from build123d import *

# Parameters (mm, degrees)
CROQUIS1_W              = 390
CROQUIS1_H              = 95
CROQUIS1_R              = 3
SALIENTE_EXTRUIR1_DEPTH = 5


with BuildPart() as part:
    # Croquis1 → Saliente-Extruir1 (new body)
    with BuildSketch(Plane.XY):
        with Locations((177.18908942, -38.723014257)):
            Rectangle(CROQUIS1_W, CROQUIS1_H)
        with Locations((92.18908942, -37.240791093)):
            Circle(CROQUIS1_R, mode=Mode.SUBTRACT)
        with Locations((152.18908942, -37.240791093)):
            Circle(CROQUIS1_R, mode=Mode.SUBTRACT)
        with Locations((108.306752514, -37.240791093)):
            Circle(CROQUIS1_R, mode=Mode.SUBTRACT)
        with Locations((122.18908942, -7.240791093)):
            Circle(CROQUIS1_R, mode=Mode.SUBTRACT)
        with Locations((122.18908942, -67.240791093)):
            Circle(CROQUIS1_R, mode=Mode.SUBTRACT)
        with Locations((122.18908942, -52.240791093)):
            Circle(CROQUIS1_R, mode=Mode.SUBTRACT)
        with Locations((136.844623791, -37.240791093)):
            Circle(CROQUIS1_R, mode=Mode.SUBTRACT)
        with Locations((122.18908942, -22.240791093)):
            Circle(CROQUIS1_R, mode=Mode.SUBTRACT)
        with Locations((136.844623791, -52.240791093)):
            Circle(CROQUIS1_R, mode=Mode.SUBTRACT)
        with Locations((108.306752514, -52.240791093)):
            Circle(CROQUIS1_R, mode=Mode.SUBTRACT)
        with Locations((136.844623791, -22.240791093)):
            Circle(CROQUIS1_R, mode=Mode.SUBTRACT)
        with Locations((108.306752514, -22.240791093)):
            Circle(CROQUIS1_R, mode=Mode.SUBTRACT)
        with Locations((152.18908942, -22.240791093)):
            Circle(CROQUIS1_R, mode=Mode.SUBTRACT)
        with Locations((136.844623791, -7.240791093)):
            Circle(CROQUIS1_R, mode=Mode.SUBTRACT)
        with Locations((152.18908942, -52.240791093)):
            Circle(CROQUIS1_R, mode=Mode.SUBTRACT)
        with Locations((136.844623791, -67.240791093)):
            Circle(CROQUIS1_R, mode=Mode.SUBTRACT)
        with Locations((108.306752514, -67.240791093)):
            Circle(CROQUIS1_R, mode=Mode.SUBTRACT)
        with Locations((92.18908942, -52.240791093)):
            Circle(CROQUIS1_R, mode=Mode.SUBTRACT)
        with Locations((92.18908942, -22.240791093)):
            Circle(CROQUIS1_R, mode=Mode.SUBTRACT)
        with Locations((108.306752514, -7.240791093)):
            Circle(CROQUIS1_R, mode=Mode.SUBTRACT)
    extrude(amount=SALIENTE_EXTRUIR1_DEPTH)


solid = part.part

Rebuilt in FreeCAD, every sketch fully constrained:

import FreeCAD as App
import Part
import Sketcher

V = App.Vector
Q = App.Units.Quantity

doc = App.newDocument("Part")
body = doc.addObject("PartDesign::Body", "Body")

sketch1 = doc.addObject("Sketcher::SketchObject", "Sketch")
body.addObject(sketch1)
sketch1.AttachmentSupport = (doc.XY_Plane, [""])
sketch1.MapMode = "FlatFace"
sketch1.addGeometry([
    Part.LineSegment(V(-17.8, 8.8, 0), V(-17.8, -86.2, 0)),
    Part.LineSegment(V(-17.8, -86.2, 0), V(372.2, -86.2, 0)),
    Part.LineSegment(V(372.2, -86.2, 0), V(372.2, 8.8, 0)),
    Part.LineSegment(V(372.2, 8.8, 0), V(-17.8, 8.8, 0)),
    Part.Circle(V(108.3, -67.2, 0), V(0, 0, 1), 3),
    Part.Circle(V(92.2, -52.2, 0), V(0, 0, 1), 3),
    Part.Circle(V(108.3, -52.2, 0), V(0, 0, 1), 3),
    Part.Circle(V(122.2, -67.2, 0), V(0, 0, 1), 3),
    Part.Circle(V(136.8, -67.2, 0), V(0, 0, 1), 3),
    Part.Circle(V(122.2, -52.2, 0), V(0, 0, 1), 3),
    Part.Circle(V(136.8, -52.2, 0), V(0, 0, 1), 3),
    Part.Circle(V(152.2, -52.2, 0), V(0, 0, 1), 3),
    Part.Circle(V(92.2, -37.2, 0), V(0, 0, 1), 3),
    Part.Circle(V(92.2, -22.2, 0), V(0, 0, 1), 3),
    Part.Circle(V(108.3, -37.2, 0), V(0, 0, 1), 3),
    Part.Circle(V(108.3, -22.2, 0), V(0, 0, 1), 3),
    Part.Circle(V(108.3, -7.2, 0), V(0, 0, 1), 3),
    Part.Circle(V(136.8, -37.2, 0), V(0, 0, 1), 3),
    Part.Circle(V(122.2, -22.2, 0), V(0, 0, 1), 3),
    Part.Circle(V(136.8, -22.2, 0), V(0, 0, 1), 3),
    Part.Circle(V(152.2, -37.2, 0), V(0, 0, 1), 3),
    Part.Circle(V(152.2, -22.2, 0), V(0, 0, 1), 3),
    Part.Circle(V(122.2, -7.2, 0), V(0, 0, 1), 3),
    Part.Circle(V(136.8, -7.2, 0), V(0, 0, 1), 3),
], False)
sketch1.addConstraint([
    Sketcher.Constraint("Coincident", 0, 2, 1, 1),
    Sketcher.Constraint("Coincident", 1, 2, 2, 1),
    Sketcher.Constraint("Coincident", 2, 2, 3, 1),
    Sketcher.Constraint("Coincident", 3, 2, 0, 1),
    Sketcher.Constraint("Vertical", 0),
    Sketcher.Constraint("Horizontal", 1),
    Sketcher.Constraint("Vertical", 2),
    Sketcher.Constraint("Horizontal", 3),
    Sketcher.Constraint("Equal", 4, 5),
    Sketcher.Constraint("Equal", 5, 6),
    Sketcher.Constraint("Equal", 6, 7),
    Sketcher.Constraint("Equal", 7, 8),
    Sketcher.Constraint("Equal", 8, 9),
    Sketcher.Constraint("Equal", 9, 10),
    Sketcher.Constraint("Equal", 10, 11),
    Sketcher.Constraint("Equal", 11, 12),
    Sketcher.Constraint("Equal", 12, 13),
    Sketcher.Constraint("Equal", 13, 14),
    Sketcher.Constraint("Equal", 14, 15),
    Sketcher.Constraint("Equal", 15, 16),
    Sketcher.Constraint("Equal", 16, 17),
    Sketcher.Constraint("Equal", 17, 18),
    Sketcher.Constraint("Equal", 18, 19),
    Sketcher.Constraint("Equal", 19, 20),
    Sketcher.Constraint("Equal", 20, 21),
    Sketcher.Constraint("Equal", 21, 22),
    Sketcher.Constraint("Equal", 22, 23),
    Sketcher.Constraint("Horizontal", 5, 3, 6, 3),
    Sketcher.Constraint("Horizontal", 4, 3, 7, 3),
    Sketcher.Constraint("Horizontal", 7, 3, 8, 3),
    Sketcher.Constraint("Horizontal", 6, 3, 9, 3),
    Sketcher.Constraint("Horizontal", 9, 3, 10, 3),
    Sketcher.Constraint("Horizontal", 10, 3, 11, 3),
    Sketcher.Constraint("Horizontal", 12, 3, 14, 3),
    Sketcher.Constraint("Horizontal", 13, 3, 15, 3),
    Sketcher.Constraint("Horizontal", 14, 3, 17, 3),
    Sketcher.Constraint("Horizontal", 15, 3, 18, 3),
    Sketcher.Constraint("Horizontal", 18, 3, 19, 3),
    Sketcher.Constraint("Horizontal", 17, 3, 20, 3),
    Sketcher.Constraint("Horizontal", 19, 3, 21, 3),
    Sketcher.Constraint("Horizontal", 16, 3, 22, 3),
    Sketcher.Constraint("Horizontal", 22, 3, 23, 3),
    Sketcher.Constraint("Vertical", 4, 3, 6, 3),
    Sketcher.Constraint("Vertical", 7, 3, 9, 3),
    Sketcher.Constraint("Vertical", 8, 3, 10, 3),
    Sketcher.Constraint("Vertical", 5, 3, 12, 3),
    Sketcher.Constraint("Vertical", 12, 3, 13, 3),
    Sketcher.Constraint("Vertical", 6, 3, 14, 3),
    Sketcher.Constraint("Vertical", 14, 3, 15, 3),
    Sketcher.Constraint("Vertical", 15, 3, 16, 3),
    Sketcher.Constraint("Vertical", 10, 3, 17, 3),
    Sketcher.Constraint("Vertical", 9, 3, 18, 3),
    Sketcher.Constraint("Vertical", 17, 3, 19, 3),
    Sketcher.Constraint("Vertical", 11, 3, 20, 3),
    Sketcher.Constraint("Vertical", 20, 3, 21, 3),
    Sketcher.Constraint("Vertical", 18, 3, 22, 3),
    Sketcher.Constraint("Vertical", 19, 3, 23, 3),
    Sketcher.Constraint("Diameter", 4, Q("6 mm")),
    Sketcher.Constraint("DistanceX", 1, 1, 1, 2, Q("390 mm")),
    Sketcher.Constraint("DistanceY", 0, 2, 0, 1, Q("95 mm")),
    Sketcher.Constraint("DistanceY", 4, 3, 5, 3, Q("15 mm")),
    Sketcher.Constraint("DistanceX", 5, 3, 7, 3, Q("30 mm")),
    Sketcher.Constraint("DistanceX", 9, 3, 11, 3, Q("30 mm")),
    Sketcher.Constraint("DistanceY", 5, 3, 12, 3, Q("15 mm")),
    Sketcher.Constraint("DistanceY", 12, 3, 13, 3, Q("15 mm")),
    Sketcher.Constraint("DistanceY", 15, 3, 16, 3, Q("15 mm")),
    Sketcher.Constraint("DistanceX", 0, 2, 5, 3, Q("110 mm")),
    Sketcher.Constraint("DistanceY", 4, 3, -1, 1, Q("67.240791 mm")),
    Sketcher.Constraint("DistanceX", -1, 1, 5, 3, Q("92.189089 mm")),
    Sketcher.Constraint("DistanceX", 4, 3, 8, 3, Q("28.537871 mm")),
    Sketcher.Constraint("DistanceX", -1, 1, 4, 3, Q("108.306753 mm")),
    Sketcher.Constraint("DistanceY", 0, 2, -1, 1, Q("86.223014 mm")),
])
pad1 = doc.addObject("PartDesign::Pad", "Pad")
body.addObject(pad1)
pad1.Profile = sketch1
pad1.Length = 5

doc.recompute()
